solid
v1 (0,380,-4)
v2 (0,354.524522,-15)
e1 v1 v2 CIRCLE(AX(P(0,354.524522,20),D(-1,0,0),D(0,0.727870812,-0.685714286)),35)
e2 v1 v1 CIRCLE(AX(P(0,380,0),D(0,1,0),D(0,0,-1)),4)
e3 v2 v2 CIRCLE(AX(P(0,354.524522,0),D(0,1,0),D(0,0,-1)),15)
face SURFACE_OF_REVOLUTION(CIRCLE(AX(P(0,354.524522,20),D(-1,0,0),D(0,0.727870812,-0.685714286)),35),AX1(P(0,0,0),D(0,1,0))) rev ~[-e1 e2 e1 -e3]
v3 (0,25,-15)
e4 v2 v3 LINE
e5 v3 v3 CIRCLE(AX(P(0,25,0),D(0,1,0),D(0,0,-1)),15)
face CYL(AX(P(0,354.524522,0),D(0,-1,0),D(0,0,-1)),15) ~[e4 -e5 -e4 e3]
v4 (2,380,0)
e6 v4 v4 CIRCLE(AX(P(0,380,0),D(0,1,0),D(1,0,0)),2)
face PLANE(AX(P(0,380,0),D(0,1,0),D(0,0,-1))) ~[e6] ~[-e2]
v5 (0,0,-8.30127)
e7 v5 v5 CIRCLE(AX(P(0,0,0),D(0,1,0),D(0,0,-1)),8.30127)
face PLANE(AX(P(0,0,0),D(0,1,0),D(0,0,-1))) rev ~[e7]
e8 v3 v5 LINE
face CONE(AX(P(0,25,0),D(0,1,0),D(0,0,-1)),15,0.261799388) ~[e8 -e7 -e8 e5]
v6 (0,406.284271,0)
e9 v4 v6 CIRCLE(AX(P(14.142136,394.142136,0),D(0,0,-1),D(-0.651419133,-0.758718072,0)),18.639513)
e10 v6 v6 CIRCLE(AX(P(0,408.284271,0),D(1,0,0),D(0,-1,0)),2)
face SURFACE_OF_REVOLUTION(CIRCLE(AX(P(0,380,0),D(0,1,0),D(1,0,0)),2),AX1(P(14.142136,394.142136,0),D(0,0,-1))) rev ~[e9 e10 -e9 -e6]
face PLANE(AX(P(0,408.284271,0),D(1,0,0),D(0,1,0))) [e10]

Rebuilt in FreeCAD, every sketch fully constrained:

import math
import FreeCAD as App
import Part
import Sketcher
from FreeCAD import Vector
Q = App.Units.Quantity

doc = App.newDocument("Part")
params = doc.addObject("Spreadsheet::Sheet", "Params")
for row, (alias, value) in enumerate([
    ("sketch1_radius", "35 mm"),
    ("sketch1_width", "4 mm"),
    ("sketch1_height", "380 mm"),
    ("revolution_angle", "360 deg"),
    ("sketch2_diameter", "4 mm"),
    ("sketch3_radius", "20 mm"),
], start=1):
    params.set(f"A{row}", alias)
    params.set(f"B{row}", "=" + value)
    params.setAlias(f"B{row}", alias)

body = doc.addObject("PartDesign::Body", "Body")

# Sketch on XY plane
sketch1 = doc.addObject("Sketcher::SketchObject", "Sketch")
body.addObject(sketch1)
sketch1.AttachmentSupport = (doc.XY_Plane, [""])
sketch1.MapMode = "FlatFace"
sketch1.addGeometry(Part.LineSegment(Vector(0, 380, 0), Vector(0, 0, 0)), False)
sketch1.addGeometry(Part.LineSegment(Vector(0, 0, 0), Vector(8.3, 0, 0)), False)
sketch1.addGeometry(Part.LineSegment(Vector(8.3, 0, 0), Vector(15, 25, 0)), False)
sketch1.addGeometry(Part.LineSegment(Vector(15, 25, 0), Vector(15, 354.5, 0)), False)
sketch1.addGeometry(Part.ArcOfCircle(Part.Circle(Vector(-20, 354.5, 0), Vector(0, 0, 1), 35), math.radians(0), math.radians(47)), False)
sketch1.addGeometry(Part.LineSegment(Vector(4, 380, 0), Vector(0, 380, 0)), False)
sketch1.addConstraint(Sketcher.Constraint("Coincident", 0, 2, 1, 1))
sketch1.addConstraint(Sketcher.Constraint("Coincident", 1, 2, 2, 1))
sketch1.addConstraint(Sketcher.Constraint("Coincident", 2, 2, 3, 1))
sketch1.addConstraint(Sketcher.Constraint("Tangent", 3, 2, 4, 1))
sketch1.addConstraint(Sketcher.Constraint("Coincident", 4, 2, 5, 1))
sketch1.addConstraint(Sketcher.Constraint("Coincident", 5, 2, 0, 1))
sketch1.addConstraint(Sketcher.Constraint("Vertical", 0))
sketch1.addConstraint(Sketcher.Constraint("Horizontal", 1))
sketch1.addConstraint(Sketcher.Constraint("Vertical", 3))
sketch1.addConstraint(Sketcher.Constraint("Horizontal", 5))
sketch1.addConstraint(Sketcher.Constraint("Coincident", 0, 2, -1, 1))
sketch1.addConstraint(Sketcher.Constraint("Radius", 4, 35.0))
sketch1.addConstraint(Sketcher.Constraint("DistanceX", 5, 2, 5, 1, 4.0))
sketch1.addConstraint(Sketcher.Constraint("DistanceY", 0, 2, 0, 1, 380.0))
sketch1.addConstraint(Sketcher.Constraint("Angle", 2, Q("75 deg")))
sketch1.addConstraint(Sketcher.Constraint("DistanceX", 4, 3, -1, 1, 20.0))
sketch1.addConstraint(Sketcher.Constraint("DistanceY", -1, 1, 2, 2, 25.0))
sketch1.setExpression("Constraints[11]", "Params.sketch1_radius")
sketch1.setExpression("Constraints[12]", "Params.sketch1_width")
sketch1.setExpression("Constraints[13]", "Params.sketch1_height")
revolution = doc.addObject("PartDesign::Revolution", "Revolution")
body.addObject(revolution)
revolution.Profile = sketch1
revolution.ReferenceAxis = (sketch1, ["V_Axis"])
revolution.setExpression("Angle", "Params.revolution_angle")

# Sketch on XZ plane
sketch2 = doc.addObject("Sketcher::SketchObject", "Sketch001")
body.addObject(sketch2)
sketch2.AttachmentSupport = (doc.XZ_Plane, [""])
sketch2.MapMode = "FlatFace"
sketch2.AttachmentOffset = App.Placement(Vector(0, 0, -380), App.Rotation())
sketch2.addGeometry(Part.Circle(Vector(0, 0, 0), Vector(0, 0, 1), 2), False)
sketch2.addConstraint(Sketcher.Constraint("Coincident", 0, 3, -1, 1))
sketch2.addConstraint(Sketcher.Constraint("Diameter", 0, 4.0))
sketch2.setExpression("Constraints[1]", "Params.sketch2_diameter")

# Sketch on XY plane
sketch3 = doc.addObject("Sketcher::SketchObject", "Sketch002")
body.addObject(sketch3)
sketch3.AttachmentSupport = (doc.XY_Plane, [""])
sketch3.MapMode = "FlatFace"
sketch3.addGeometry(Part.ArcOfCircle(Part.Circle(Vector(14, 394, 0), Vector(0, 0, 1), 20), math.radians(135), math.radians(225)), False)
sketch3.addConstraint(Sketcher.Constraint("PointOnObject", 0, 1, -2))
sketch3.addConstraint(Sketcher.Constraint("PointOnObject", 0, 2, -2))
sketch3.addConstraint(Sketcher.Constraint("Radius", 0, 20.0))
sketch3.addConstraint(Sketcher.Constraint("DistanceY", -1, 1, 0, 2, 380.0))
sketch3.addConstraint(Sketcher.Constraint("DistanceY", -1, 1, 0, 1, 408.284271))
sketch3.setExpression("Constraints[2]", "Params.sketch3_radius")
doc.recompute()

additivepipe = doc.addObject("PartDesign::AdditivePipe", "AdditivePipe")
body.addObject(additivepipe)
additivepipe.Profile = sketch2
additivepipe.Spine = (sketch3, ["Edge1"])

doc.recompute()
